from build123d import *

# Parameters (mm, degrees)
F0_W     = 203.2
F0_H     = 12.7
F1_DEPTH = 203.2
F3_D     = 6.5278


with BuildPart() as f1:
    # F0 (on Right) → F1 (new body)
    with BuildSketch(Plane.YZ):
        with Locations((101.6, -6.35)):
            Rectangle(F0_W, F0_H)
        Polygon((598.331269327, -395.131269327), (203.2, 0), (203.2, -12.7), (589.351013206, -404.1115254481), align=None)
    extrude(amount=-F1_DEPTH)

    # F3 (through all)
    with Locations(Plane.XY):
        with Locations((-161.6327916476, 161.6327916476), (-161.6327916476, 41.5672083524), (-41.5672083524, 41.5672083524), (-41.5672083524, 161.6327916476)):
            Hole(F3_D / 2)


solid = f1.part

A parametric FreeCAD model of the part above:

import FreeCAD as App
import Part
import Sketcher
Q = App.Units.Quantity

doc = App.newDocument("Part")
body = doc.addObject("PartDesign::Body", "Body")

# Sketch on YZ plane
sketch1 = body.newObject("Sketcher::SketchObject", "Sketch")
sketch1.AttachmentSupport = (doc.getObject("YZ_Plane"), [""])
sketch1.MapMode = "FlatFace"
sketch1.addGeometry([
    Part.LineSegment(App.Vector(0, 0, 0), App.Vector(0, -13, 0)),  # 0
    Part.LineSegment(App.Vector(0, -13, 0), App.Vector(203, -13, 0)),  # 1
    Part.LineSegment(App.Vector(203, -13, 0), App.Vector(589, -404, 0)),  # 2
    Part.LineSegment(App.Vector(589, -404, 0), App.Vector(598, -395, 0)),  # 3
    Part.LineSegment(App.Vector(598, -395, 0), App.Vector(203, 0, 0)),  # 4
    Part.LineSegment(App.Vector(203, 0, 0), App.Vector(0, 0, 0)),  # 5
], False)
sketch1.addConstraint([
    Sketcher.Constraint("Coincident", 0, 2, 1, 1),
    Sketcher.Constraint("Coincident", 1, 2, 2, 1),
    Sketcher.Constraint("Coincident", 2, 2, 3, 1),
    Sketcher.Constraint("Coincident", 3, 2, 4, 1),
    Sketcher.Constraint("Coincident", 4, 2, 5, 1),
    Sketcher.Constraint("Coincident", 5, 2, 0, 1),
    Sketcher.Constraint("Vertical", 0),
    Sketcher.Constraint("Horizontal", 1),
    Sketcher.Constraint("Horizontal", 5),
    Sketcher.Constraint("Coincident", 5, 2, -1, 1),
    Sketcher.Constraint("Perpendicular", 3, 4),
    Sketcher.Constraint("Vertical", 1, 2, 4, 2),
    Sketcher.Constraint("DistanceX", 1, 1, 1, 2, Q("8 in")),
    Sketcher.Constraint("Distance", 4, Q("22 in")),
    Sketcher.Constraint("DistanceY", 0, 2, 0, 1, Q("0.5 in")),
    Sketcher.Constraint("Angle", 3, Q("45 deg")),
    Sketcher.Constraint("Distance", 3, Q("0.5 in")),
])
pad1 = body.newObject("PartDesign::Pad", "Pad")
pad1.Profile = sketch1
pad1.Length = Q("8 in")
pad1.Reversed = True

# Sketch on XY plane
sketch2 = body.newObject("Sketcher::SketchObject", "Sketch001")
sketch2.AttachmentSupport = (doc.getObject("XY_Plane"), [""])
sketch2.MapMode = "FlatFace"
sketch2.addGeometry([
    Part.Circle(App.Vector(-161.6, 161.6, 0), App.Vector(0, 0, 1), 3.3),
    Part.Circle(App.Vector(-161.6, 41.6, 0), App.Vector(0, 0, 1), 3.3),
    Part.Circle(App.Vector(-41.6, 41.6, 0), App.Vector(0, 0, 1), 3.3),
    Part.Circle(App.Vector(-41.6, 161.6, 0), App.Vector(0, 0, 1), 3.3),
], False)
sketch2.addConstraint([
    Sketcher.Constraint("Equal", 0, 1),
    Sketcher.Constraint("Equal", 1, 2),
    Sketcher.Constraint("Equal", 2, 3),
    Sketcher.Constraint("Horizontal", 1, 3, 2, 3),
    Sketcher.Constraint("Horizontal", 0, 3, 3, 3),
    Sketcher.Constraint("Vertical", 0, 3, 1, 3),
    Sketcher.Constraint("Vertical", 2, 3, 3, 3),
    Sketcher.Constraint("Diameter", 0, Q("0.257 in")),
    Sketcher.Constraint("DistanceX", 0, 3, -1, 1, 161.632792),
    Sketcher.Constraint("DistanceY", -1, 1, 0, 3, 161.632792),
    Sketcher.Constraint("DistanceY", -1, 1, 1, 3, 41.567208),
    Sketcher.Constraint("DistanceX", 2, 3, -1, 1, 41.567208),
])
doc.recompute()
hole = body.newObject("PartDesign::Hole", "Hole")
hole.Profile = sketch2
hole.ThreadType = "None"
hole.Diameter = Q("0.257 in")
hole.DepthType = "ThroughAll"

doc.recompute()
